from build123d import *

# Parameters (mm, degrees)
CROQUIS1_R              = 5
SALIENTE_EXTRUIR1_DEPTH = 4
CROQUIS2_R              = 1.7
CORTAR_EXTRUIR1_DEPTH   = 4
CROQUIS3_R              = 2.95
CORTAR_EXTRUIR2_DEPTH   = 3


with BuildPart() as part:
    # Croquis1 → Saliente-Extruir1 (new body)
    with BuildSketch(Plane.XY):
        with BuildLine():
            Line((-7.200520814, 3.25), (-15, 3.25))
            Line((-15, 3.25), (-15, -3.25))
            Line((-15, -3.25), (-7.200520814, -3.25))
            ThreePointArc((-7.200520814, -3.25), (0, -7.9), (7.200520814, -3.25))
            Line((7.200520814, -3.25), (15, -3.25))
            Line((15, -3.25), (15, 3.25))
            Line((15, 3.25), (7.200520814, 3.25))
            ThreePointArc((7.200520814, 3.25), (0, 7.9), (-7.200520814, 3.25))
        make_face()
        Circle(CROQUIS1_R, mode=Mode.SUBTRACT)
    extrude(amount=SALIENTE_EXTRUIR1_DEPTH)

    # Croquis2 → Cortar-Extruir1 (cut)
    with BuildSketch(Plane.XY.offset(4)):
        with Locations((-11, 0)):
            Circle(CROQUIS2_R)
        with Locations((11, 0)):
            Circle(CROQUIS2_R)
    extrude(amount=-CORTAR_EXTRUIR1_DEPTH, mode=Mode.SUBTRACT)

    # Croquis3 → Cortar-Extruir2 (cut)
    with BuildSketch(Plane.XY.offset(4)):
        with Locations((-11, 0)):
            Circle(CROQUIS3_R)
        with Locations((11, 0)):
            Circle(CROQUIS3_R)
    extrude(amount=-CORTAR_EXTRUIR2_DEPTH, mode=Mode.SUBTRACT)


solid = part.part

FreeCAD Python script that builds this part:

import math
import FreeCAD as App
import Part
import Sketcher

V = App.Vector
Q = App.Units.Quantity

doc = App.newDocument("Part")
body = doc.addObject("PartDesign::Body", "Body")

# Sketch on XY plane
sketch1 = body.newObject("Sketcher::SketchObject", "Sketch")
sketch1.AttachmentSupport = (doc.getObject("XY_Plane"), [""])
sketch1.MapMode = "FlatFace"
sketch1.addGeometry([
    Part.LineSegment(V(-7, 3, 0), V(-15, 3, 0)),  # 0
    Part.LineSegment(V(-15, 3, 0), V(-15, -3, 0)),  # 1
    Part.LineSegment(V(-15, -3, 0), V(-7, -3, 0)),  # 2
    Part.ArcOfCircle(Part.Circle(V(0, 0, 0), V(0, 0, 1), 8), math.radians(-156), math.radians(-24)),  # 3
    Part.LineSegment(V(7, -3, 0), V(15, -3, 0)),  # 4
    Part.LineSegment(V(15, -3, 0), V(15, 3, 0)),  # 5
    Part.LineSegment(V(15, 3, 0), V(7, 3, 0)),  # 6
    Part.ArcOfCircle(Part.Circle(V(0, 0, 0), V(0, 0, 1), 8), math.radians(24), math.radians(156)),  # 7
    Part.Circle(V(0, 0, 0), V(0, 0, 1), 5),  # 8
], False)
sketch1.addConstraint([
    Sketcher.Constraint("Coincident", 0, 2, 1, 1),
    Sketcher.Constraint("Coincident", 1, 2, 2, 1),
    Sketcher.Constraint("Coincident", 2, 2, 3, 1),
    Sketcher.Constraint("Coincident", 3, 2, 4, 1),
    Sketcher.Constraint("Coincident", 4, 2, 5, 1),
    Sketcher.Constraint("Coincident", 5, 2, 6, 1),
    Sketcher.Constraint("Coincident", 6, 2, 7, 1),
    Sketcher.Constraint("Coincident", 7, 2, 0, 1),
    Sketcher.Constraint("Horizontal", 0),
    Sketcher.Constraint("Vertical", 1),
    Sketcher.Constraint("Horizontal", 2),
    Sketcher.Constraint("Horizontal", 4),
    Sketcher.Constraint("Vertical", 5),
    Sketcher.Constraint("Horizontal", 6),
    Sketcher.Constraint("Coincident", 3, 3, -1, 1),
    Sketcher.Constraint("Coincident", 7, 3, -1, 1),
    Sketcher.Constraint("Coincident", 8, 3, -1, 1),
    Sketcher.Constraint("Equal", 3, 7),
    Sketcher.Constraint("Symmetric", 0, 2, 4, 2, -1, 1),
    Sketcher.Constraint("Horizontal", 2, 2, 3, 2),
    Sketcher.Constraint("Horizontal", 0, 2, 5, 2),
    Sketcher.Constraint("Diameter", 8, Q("10 mm")),
    Sketcher.Constraint("Radius", 3, Q("7.9 mm")),
    Sketcher.Constraint("DistanceY", 1, 2, 1, 1, Q("6.5 mm")),
    Sketcher.Constraint("DistanceX", 0, 2, -1, 1, Q("15 mm")),
])
pad1 = body.newObject("PartDesign::Pad", "Pad")
pad1.Profile = sketch1
pad1.Length = 4

# Sketch on XY plane
sketch2 = body.newObject("Sketcher::SketchObject", "Sketch001")
sketch2.AttachmentSupport = (doc.getObject("XY_Plane"), [""])
sketch2.MapMode = "FlatFace"
sketch2.AttachmentOffset = App.Placement(V(0, 0, 4), App.Rotation())
sketch2.addGeometry([
    Part.Circle(V(-11, 0, 0), V(0, 0, 1), 1.7),
    Part.Circle(V(11, 0, 0), V(0, 0, 1), 1.7),
], False)
sketch2.addConstraint([
    Sketcher.Constraint("Equal", 0, 1),
    Sketcher.Constraint("Symmetric", 0, 3, 1, 3, -1, 1),
    Sketcher.Constraint("PointOnObject", 0, 3, -1),
    Sketcher.Constraint("Diameter", 0, Q("3.4 mm")),
    Sketcher.Constraint("DistanceX", 0, 3, -1, 1, Q("11 mm")),
])
pocket1 = body.newObject("PartDesign::Pocket", "Pocket")
pocket1.Profile = sketch2
pocket1.Length = 4

# Sketch on XY plane
sketch3 = body.newObject("Sketcher::SketchObject", "Sketch002")
sketch3.AttachmentSupport = (doc.getObject("XY_Plane"), [""])
sketch3.MapMode = "FlatFace"
sketch3.AttachmentOffset = App.Placement(V(0, 0, 4), App.Rotation())
sketch3.addGeometry([
    Part.Circle(V(-11, 0, 0), V(0, 0, 1), 3),
    Part.Circle(V(11, 0, 0), V(0, 0, 1), 3),
], False)
sketch3.addConstraint([
    Sketcher.Constraint("Equal", 0, 1),
    Sketcher.Constraint("Symmetric", 0, 3, 1, 3, -1, 1),
    Sketcher.Constraint("PointOnObject", 0, 3, -1),
    Sketcher.Constraint("Diameter", 0, Q("5.9 mm")),
    Sketcher.Constraint("DistanceX", 0, 3, -1, 1, Q("11 mm")),
])
pocket2 = body.newObject("PartDesign::Pocket", "Pocket001")
pocket2.Profile = sketch3
pocket2.Length = 3

doc.recompute()
